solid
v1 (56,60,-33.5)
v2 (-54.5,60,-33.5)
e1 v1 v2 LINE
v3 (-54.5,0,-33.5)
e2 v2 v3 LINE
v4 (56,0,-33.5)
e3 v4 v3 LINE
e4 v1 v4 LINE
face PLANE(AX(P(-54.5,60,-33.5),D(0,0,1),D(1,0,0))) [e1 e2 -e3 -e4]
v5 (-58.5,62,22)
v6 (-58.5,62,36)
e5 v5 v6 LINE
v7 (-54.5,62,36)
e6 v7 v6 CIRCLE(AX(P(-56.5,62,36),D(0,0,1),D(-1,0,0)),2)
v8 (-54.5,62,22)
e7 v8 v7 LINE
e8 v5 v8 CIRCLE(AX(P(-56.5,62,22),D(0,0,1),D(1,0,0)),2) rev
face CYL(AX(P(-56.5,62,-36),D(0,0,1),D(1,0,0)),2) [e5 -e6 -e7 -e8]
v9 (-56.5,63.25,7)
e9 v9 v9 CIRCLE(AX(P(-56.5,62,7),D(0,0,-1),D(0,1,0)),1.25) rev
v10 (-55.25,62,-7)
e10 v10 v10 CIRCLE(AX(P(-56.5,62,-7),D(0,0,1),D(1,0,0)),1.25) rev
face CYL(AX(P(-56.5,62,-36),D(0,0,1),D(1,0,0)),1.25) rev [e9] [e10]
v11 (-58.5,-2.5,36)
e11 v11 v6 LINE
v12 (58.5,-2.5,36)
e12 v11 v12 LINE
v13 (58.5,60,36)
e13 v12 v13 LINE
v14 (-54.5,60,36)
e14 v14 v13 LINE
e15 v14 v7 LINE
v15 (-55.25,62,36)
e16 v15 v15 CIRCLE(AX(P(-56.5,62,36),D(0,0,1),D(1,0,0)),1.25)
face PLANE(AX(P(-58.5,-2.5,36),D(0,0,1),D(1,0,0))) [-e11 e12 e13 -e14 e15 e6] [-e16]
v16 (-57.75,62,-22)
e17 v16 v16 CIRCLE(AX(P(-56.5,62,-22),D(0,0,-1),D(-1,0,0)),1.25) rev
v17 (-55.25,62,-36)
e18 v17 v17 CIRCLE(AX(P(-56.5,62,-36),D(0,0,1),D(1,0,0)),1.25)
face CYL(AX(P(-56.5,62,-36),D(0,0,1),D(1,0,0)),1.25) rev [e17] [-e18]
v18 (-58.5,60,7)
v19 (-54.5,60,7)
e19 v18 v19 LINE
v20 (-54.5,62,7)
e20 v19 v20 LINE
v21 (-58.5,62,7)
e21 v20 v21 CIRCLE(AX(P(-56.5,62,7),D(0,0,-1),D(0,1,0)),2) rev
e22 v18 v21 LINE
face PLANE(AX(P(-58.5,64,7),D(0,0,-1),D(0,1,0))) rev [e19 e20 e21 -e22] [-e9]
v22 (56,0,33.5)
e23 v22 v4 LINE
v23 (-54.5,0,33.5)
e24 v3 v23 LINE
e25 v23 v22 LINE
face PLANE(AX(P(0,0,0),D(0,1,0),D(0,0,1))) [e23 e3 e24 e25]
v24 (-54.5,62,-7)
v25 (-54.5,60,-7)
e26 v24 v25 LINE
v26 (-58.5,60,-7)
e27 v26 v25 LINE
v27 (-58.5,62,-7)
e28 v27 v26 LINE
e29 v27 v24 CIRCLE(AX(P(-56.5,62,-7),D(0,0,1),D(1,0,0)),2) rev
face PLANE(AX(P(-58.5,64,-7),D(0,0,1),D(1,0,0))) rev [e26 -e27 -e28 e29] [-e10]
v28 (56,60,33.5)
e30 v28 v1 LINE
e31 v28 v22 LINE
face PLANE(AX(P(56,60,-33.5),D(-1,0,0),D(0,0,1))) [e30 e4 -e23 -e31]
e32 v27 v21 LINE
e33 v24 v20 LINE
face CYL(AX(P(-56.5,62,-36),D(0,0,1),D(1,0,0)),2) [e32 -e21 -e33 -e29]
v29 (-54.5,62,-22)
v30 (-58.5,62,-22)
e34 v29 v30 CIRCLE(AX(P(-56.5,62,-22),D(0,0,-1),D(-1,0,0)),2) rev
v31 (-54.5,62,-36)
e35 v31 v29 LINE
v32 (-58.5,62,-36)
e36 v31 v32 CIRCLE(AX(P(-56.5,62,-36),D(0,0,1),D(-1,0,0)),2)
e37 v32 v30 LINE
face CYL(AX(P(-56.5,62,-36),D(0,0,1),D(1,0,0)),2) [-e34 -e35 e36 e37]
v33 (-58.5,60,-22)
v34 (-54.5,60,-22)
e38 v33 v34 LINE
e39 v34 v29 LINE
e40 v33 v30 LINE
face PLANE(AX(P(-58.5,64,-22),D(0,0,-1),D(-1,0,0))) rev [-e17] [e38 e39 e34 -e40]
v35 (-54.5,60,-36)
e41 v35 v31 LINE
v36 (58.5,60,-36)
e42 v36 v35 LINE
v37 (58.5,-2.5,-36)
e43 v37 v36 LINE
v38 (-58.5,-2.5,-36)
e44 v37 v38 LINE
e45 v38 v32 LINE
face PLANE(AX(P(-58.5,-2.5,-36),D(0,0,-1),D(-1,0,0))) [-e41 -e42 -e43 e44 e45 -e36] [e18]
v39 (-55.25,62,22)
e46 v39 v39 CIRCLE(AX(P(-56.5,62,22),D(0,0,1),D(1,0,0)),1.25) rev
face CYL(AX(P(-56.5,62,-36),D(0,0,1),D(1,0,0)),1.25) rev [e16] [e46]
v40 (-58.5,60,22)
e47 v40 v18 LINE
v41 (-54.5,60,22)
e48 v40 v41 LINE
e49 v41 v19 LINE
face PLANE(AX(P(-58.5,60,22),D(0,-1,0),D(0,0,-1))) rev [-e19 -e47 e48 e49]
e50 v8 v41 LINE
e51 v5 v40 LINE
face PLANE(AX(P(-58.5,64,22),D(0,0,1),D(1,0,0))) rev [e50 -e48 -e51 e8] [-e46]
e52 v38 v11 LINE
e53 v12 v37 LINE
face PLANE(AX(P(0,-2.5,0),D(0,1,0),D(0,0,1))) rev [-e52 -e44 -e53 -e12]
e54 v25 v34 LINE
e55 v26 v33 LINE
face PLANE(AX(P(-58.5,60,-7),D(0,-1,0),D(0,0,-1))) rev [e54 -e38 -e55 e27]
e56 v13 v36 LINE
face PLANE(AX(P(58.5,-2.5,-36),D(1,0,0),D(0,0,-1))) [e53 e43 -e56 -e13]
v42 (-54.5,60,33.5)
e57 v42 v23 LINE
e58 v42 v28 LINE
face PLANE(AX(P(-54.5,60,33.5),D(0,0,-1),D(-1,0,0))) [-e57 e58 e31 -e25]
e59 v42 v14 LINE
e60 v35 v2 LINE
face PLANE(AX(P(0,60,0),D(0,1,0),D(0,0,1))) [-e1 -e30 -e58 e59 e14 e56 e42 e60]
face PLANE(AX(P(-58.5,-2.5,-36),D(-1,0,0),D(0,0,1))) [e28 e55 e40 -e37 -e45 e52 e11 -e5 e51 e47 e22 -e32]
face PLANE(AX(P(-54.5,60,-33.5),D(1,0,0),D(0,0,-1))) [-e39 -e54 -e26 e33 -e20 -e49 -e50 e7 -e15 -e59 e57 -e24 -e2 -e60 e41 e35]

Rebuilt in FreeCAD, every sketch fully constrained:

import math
import FreeCAD as App
import Part
import Sketcher

V = App.Vector
Q = App.Units.Quantity


def add_polygon(sketch, points):
    """Adds a closed chain of lines whose ends are joined by coincident constraints."""
    first, n = sketch.GeometryCount, len(points)
    for a, b in zip(points, points[1:] + points[:1]):
        sketch.addGeometry(Part.LineSegment(App.Vector(*a, 0), App.Vector(*b, 0)), False)
    for i in range(n):
        sketch.addConstraint(Sketcher.Constraint("Coincident", first + i, 2, first + (i + 1) % n, 1))

doc = App.newDocument("Part")
params = doc.addObject("Spreadsheet::Sheet", "Params")
for row, (alias, value) in enumerate([
    ("sketch1_width", "117 mm"),
    ("sketch1_height", "72 mm"),
    ("pad1_length", "2.5 mm"),
    ("sketch2_width", "117 mm"),
    ("sketch2_height", "72 mm"),
    ("sketch2_height2", "67 mm"),
    ("sketch2_width2", "110.5 mm"),
    ("pad2_length", "60 mm"),
    ("sketch3_radius", "2 mm"),
    ("sketch3_diameter", "2.5 mm"),
    ("sketch3_height", "2 mm"),
    ("pad3_length", "72 mm"),
    ("sketch4_width", "4 mm"),
    ("sketch4_height", "15 mm"),
], start=1):
    params.set(f"A{row}", alias)
    params.set(f"B{row}", "=" + value)
    params.setAlias(f"B{row}", alias)

body = doc.addObject("PartDesign::Body", "Body")

sketch1 = body.newObject("Sketcher::SketchObject", "Sketch")
sketch1.AttachmentSupport = (doc.getObject("XZ_Plane"), [""])
sketch1.MapMode = "FlatFace"
add_polygon(sketch1, [(-58, -36), (-58, 36), (58, 36), (58, -36)])
sketch1.addConstraint([
    Sketcher.Constraint("Vertical", 0),
    Sketcher.Constraint("Horizontal", 1),
    Sketcher.Constraint("Vertical", 2),
    Sketcher.Constraint("Horizontal", 3),
    Sketcher.Constraint("Symmetric", 0, 2, 2, 2, -1, 1),
    Sketcher.Constraint("DistanceX", 1, 1, 1, 2, Q("117 mm")),
    Sketcher.Constraint("DistanceY", 0, 1, 0, 2, Q("72 mm")),
])
sketch1.setExpression("Constraints[9]", "Params.sketch1_width")
sketch1.setExpression("Constraints[10]", "Params.sketch1_height")
pad1 = body.newObject("PartDesign::Pad", "Pad")
pad1.Profile = sketch1
pad1.setExpression("Length", "Params.pad1_length")

sketch2 = body.newObject("Sketcher::SketchObject", "Sketch001")
sketch2.AttachmentSupport = (doc.getObject("XZ_Plane"), [""])
sketch2.MapMode = "FlatFace"
add_polygon(sketch2, [(-58, -36), (-58, 36), (58, 36), (58, -36)])
add_polygon(sketch2, [(56, 34), (-54, 34), (-54, -34), (56, -34)])
sketch2.addConstraint([
    Sketcher.Constraint("Vertical", 0),
    Sketcher.Constraint("Horizontal", 1),
    Sketcher.Constraint("Vertical", 2),
    Sketcher.Constraint("Horizontal", 3),
    Sketcher.Constraint("Horizontal", 4),
    Sketcher.Constraint("Vertical", 5),
    Sketcher.Constraint("Horizontal", 6),
    Sketcher.Constraint("Vertical", 7),
    Sketcher.Constraint("Symmetric", 0, 2, 2, 2, -1, 1),
    Sketcher.Constraint("DistanceX", 1, 1, 1, 2, Q("117 mm")),
    Sketcher.Constraint("DistanceY", 0, 1, 0, 2, Q("72 mm")),
    Sketcher.Constraint("DistanceY", 5, 2, 5, 1, Q("67 mm")),
    Sketcher.Constraint("DistanceX", 4, 2, 4, 1, Q("110.5 mm")),
    Sketcher.Constraint("DistanceX", -1, 1, 6, 2, Q("56 mm")),
    Sketcher.Constraint("DistanceY", -1, 1, 4, 2, Q("33.5 mm")),
])
sketch2.setExpression("Constraints[17]", "Params.sketch2_width")
sketch2.setExpression("Constraints[18]", "Params.sketch2_height")
sketch2.setExpression("Constraints[19]", "Params.sketch2_height2")
sketch2.setExpression("Constraints[20]", "Params.sketch2_width2")
pad2 = body.newObject("PartDesign::Pad", "Pad001")
pad2.Profile = sketch2
pad2.setExpression("Length", "Params.pad2_length")
pad2.Reversed = True

sketch3 = body.newObject("Sketcher::SketchObject", "Sketch002")
sketch3.AttachmentSupport = (doc.getObject("XY_Plane"), [""])
sketch3.MapMode = "FlatFace"
sketch3.addGeometry([
    Part.LineSegment(V(-58.5, 62, 0), V(-58.5, 60, 0)),
    Part.LineSegment(V(-58.5, 60, 0), V(-54.5, 60, 0)),
    Part.LineSegment(V(-54.5, 60, 0), V(-54.5, 62, 0)),
    Part.ArcOfCircle(Part.Circle(V(-56.5, 62, 0), V(0, 0, 1), 2), math.radians(0), math.radians(180)),
    Part.Circle(V(-56.5, 62, 0), V(0, 0, 1), 1.2),
], False)
sketch3.addConstraint([
    Sketcher.Constraint("Coincident", 0, 2, 1, 1),
    Sketcher.Constraint("Coincident", 1, 2, 2, 1),
    Sketcher.Constraint("Tangent", 2, 2, 3, 1),
    Sketcher.Constraint("Tangent", 3, 2, 0, 1),
    Sketcher.Constraint("Vertical", 0),
    Sketcher.Constraint("Horizontal", 1),
    Sketcher.Constraint("Vertical", 2),
    Sketcher.Constraint("Coincident", 4, 3, 3, 3),
    Sketcher.Constraint("Radius", 3, Q("2 mm")),
    Sketcher.Constraint("Diameter", 4, Q("2.5 mm")),
    Sketcher.Constraint("DistanceY", 0, 2, 0, 1, Q("2 mm")),
    Sketcher.Constraint("DistanceY", -1, 1, 3, 3, Q("62 mm")),
    Sketcher.Constraint("DistanceX", 3, 3, -1, 1, Q("56.5 mm")),
])
sketch3.setExpression("Constraints[8]", "Params.sketch3_radius")
sketch3.setExpression("Constraints[9]", "Params.sketch3_diameter")
sketch3.setExpression("Constraints[10]", "Params.sketch3_height")
pad3 = body.newObject("PartDesign::Pad", "Pad002")
pad3.Profile = sketch3
pad3.setExpression("Length", "Params.pad3_length")
pad3.Midplane = True

sketch4 = body.newObject("Sketcher::SketchObject", "Sketch003")
sketch4.AttachmentSupport = (doc.getObject("YZ_Plane"), [""])
sketch4.MapMode = "FlatFace"
add_polygon(sketch4, [(64, 22), (60, 22), (60, 7), (64, 7)])
add_polygon(sketch4, [(64, -7), (60, -7), (60, -22), (64, -22)])
sketch4.addConstraint([
    Sketcher.Constraint("Horizontal", 0),
    Sketcher.Constraint("Vertical", 1),
    Sketcher.Constraint("Horizontal", 2),
    Sketcher.Constraint("Vertical", 3),
    Sketcher.Constraint("Horizontal", 4),
    Sketcher.Constraint("Vertical", 5),
    Sketcher.Constraint("Horizontal", 6),
    Sketcher.Constraint("Vertical", 7),
    Sketcher.Constraint("Symmetric", 1, 2, 4, 2, -1),
    Sketcher.Constraint("Symmetric", 3, 2, 6, 2, -1),
    Sketcher.Constraint("DistanceX", 0, 2, 0, 1, Q("4 mm")),
    Sketcher.Constraint("DistanceY", 1, 2, 1, 1, Q("15 mm")),
    Sketcher.Constraint("DistanceX", -1, 1, 0, 2, Q("60 mm")),
    Sketcher.Constraint("DistanceY", -1, 1, 0, 2, Q("22 mm")),
])
sketch4.setExpression("Constraints[18]", "Params.sketch4_width")
sketch4.setExpression("Constraints[19]", "Params.sketch4_height")
pocket1 = body.newObject("PartDesign::Pocket", "Pocket")
pocket1.Profile = sketch4
pocket1.Type = "ThroughAll"
pocket1.Midplane = True

doc.recompute()
